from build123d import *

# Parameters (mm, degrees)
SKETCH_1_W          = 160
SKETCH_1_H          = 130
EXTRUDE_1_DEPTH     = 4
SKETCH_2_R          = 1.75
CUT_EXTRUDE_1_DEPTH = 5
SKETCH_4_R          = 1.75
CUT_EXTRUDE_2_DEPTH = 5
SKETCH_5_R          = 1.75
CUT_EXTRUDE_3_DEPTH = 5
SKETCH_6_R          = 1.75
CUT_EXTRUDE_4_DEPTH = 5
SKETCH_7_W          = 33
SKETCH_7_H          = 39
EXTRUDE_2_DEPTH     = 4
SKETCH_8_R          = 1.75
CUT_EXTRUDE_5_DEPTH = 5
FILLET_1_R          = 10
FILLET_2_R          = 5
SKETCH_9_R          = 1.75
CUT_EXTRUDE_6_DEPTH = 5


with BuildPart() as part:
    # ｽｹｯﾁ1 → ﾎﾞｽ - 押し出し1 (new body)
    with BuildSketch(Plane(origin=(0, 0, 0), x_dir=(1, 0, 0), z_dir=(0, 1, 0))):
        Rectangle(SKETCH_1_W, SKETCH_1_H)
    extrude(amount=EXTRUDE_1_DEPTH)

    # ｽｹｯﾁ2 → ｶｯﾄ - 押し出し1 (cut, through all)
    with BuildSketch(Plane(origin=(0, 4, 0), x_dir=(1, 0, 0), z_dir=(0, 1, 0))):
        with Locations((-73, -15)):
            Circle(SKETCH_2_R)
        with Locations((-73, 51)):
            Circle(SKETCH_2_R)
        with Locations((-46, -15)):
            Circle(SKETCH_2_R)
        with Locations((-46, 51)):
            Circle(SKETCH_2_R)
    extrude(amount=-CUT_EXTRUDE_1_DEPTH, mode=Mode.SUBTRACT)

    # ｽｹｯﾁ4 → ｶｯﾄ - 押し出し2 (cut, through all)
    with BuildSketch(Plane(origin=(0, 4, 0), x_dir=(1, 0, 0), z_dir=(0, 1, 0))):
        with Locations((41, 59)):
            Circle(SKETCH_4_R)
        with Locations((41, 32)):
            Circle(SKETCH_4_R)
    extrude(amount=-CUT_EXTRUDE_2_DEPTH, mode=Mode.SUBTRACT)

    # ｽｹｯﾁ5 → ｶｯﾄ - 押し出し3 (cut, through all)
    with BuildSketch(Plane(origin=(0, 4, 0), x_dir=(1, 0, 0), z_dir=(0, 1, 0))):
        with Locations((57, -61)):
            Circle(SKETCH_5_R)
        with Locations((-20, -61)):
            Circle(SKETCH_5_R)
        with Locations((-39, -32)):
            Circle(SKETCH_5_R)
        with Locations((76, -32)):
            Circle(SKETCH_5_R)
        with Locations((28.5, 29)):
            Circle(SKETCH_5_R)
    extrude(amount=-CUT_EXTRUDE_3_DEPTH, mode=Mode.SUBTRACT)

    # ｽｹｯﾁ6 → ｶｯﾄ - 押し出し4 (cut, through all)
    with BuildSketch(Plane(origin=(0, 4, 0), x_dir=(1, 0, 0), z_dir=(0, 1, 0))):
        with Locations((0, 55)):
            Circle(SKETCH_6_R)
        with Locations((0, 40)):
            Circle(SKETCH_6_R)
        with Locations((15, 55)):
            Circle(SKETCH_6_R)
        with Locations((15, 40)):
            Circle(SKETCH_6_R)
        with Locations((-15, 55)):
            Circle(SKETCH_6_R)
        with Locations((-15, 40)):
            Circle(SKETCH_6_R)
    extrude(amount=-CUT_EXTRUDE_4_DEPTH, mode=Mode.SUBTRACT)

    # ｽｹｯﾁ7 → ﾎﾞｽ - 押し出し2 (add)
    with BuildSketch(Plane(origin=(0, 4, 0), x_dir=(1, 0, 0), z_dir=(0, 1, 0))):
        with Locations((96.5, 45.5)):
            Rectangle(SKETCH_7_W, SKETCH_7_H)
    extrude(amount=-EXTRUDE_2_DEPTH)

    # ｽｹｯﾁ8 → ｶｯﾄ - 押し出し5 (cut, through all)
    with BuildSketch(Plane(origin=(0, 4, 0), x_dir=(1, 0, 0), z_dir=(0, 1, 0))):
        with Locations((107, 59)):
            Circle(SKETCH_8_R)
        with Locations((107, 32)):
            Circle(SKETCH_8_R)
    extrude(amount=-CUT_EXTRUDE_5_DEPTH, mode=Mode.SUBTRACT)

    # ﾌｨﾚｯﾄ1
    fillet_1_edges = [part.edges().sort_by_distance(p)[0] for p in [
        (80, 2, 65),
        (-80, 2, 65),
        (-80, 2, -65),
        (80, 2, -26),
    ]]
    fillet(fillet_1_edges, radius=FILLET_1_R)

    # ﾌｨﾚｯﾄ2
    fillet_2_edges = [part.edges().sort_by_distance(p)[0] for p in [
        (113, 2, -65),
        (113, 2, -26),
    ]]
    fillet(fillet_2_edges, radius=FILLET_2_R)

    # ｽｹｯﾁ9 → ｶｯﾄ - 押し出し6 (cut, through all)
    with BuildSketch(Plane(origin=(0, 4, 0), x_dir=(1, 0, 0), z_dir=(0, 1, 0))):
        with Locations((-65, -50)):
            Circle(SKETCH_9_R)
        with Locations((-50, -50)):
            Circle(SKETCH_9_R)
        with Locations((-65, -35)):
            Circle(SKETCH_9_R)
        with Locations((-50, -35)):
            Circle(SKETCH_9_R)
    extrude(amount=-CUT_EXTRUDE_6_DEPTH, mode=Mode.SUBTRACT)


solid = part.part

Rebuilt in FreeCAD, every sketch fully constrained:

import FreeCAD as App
import Part
import Sketcher
from FreeCAD import Vector
Q = App.Units.Quantity


def edges_at(feature, points):
    """Names of the edges that pass closest to the given points."""
    edges = feature.Shape.Edges
    near = lambda p: min(range(len(edges)), key=lambda i: edges[i].distToShape(Part.Vertex(*p))[0])
    return sorted({f"Edge{near(p) + 1}" for p in points})

doc = App.newDocument("Part")
body = doc.addObject("PartDesign::Body", "Body")

sketch1 = body.newObject("Sketcher::SketchObject", "Sketch")
sketch1.AttachmentSupport = (doc.getObject("XZ_Plane"), [""])
sketch1.MapMode = "FlatFace"
sketch1.addGeometry([
    Part.LineSegment(Vector(-80, -65, 0), Vector(-80, 65, 0)),
    Part.LineSegment(Vector(-80, 65, 0), Vector(80, 65, 0)),
    Part.LineSegment(Vector(80, 65, 0), Vector(80, -65, 0)),
    Part.LineSegment(Vector(80, -65, 0), Vector(-80, -65, 0)),
], False)
sketch1.addConstraint([
    Sketcher.Constraint("Coincident", 0, 2, 1, 1),
    Sketcher.Constraint("Coincident", 1, 2, 2, 1),
    Sketcher.Constraint("Coincident", 2, 2, 3, 1),
    Sketcher.Constraint("Coincident", 3, 2, 0, 1),
    Sketcher.Constraint("Vertical", 0),
    Sketcher.Constraint("Horizontal", 1),
    Sketcher.Constraint("Vertical", 2),
    Sketcher.Constraint("Horizontal", 3),
    Sketcher.Constraint("Symmetric", 0, 2, 2, 2, -1, 1),
    Sketcher.Constraint("DistanceX", 1, 1, 1, 2, Q("160 mm")),
    Sketcher.Constraint("DistanceY", 0, 1, 0, 2, Q("130 mm")),
])
pad1 = body.newObject("PartDesign::Pad", "Pad")
pad1.Profile = sketch1
pad1.Length = 4
pad1.Reversed = True

sketch2 = body.newObject("Sketcher::SketchObject", "Sketch001")
sketch2.AttachmentSupport = (doc.getObject("XZ_Plane"), [""])
sketch2.MapMode = "FlatFace"
sketch2.AttachmentOffset = App.Placement(Vector(0, 0, -4), App.Rotation())
sketch2.addGeometry([
    Part.Circle(Vector(-73, 15, 0), Vector(0, 0, 1), 1.8),
    Part.Circle(Vector(-73, -51, 0), Vector(0, 0, 1), 1.8),
    Part.Circle(Vector(-46, 15, 0), Vector(0, 0, 1), 1.8),
    Part.Circle(Vector(-46, -51, 0), Vector(0, 0, 1), 1.8),
], False)
sketch2.addConstraint([
    Sketcher.Constraint("Equal", 0, 1),
    Sketcher.Constraint("Equal", 1, 2),
    Sketcher.Constraint("Equal", 2, 3),
    Sketcher.Constraint("Horizontal", 0, 3, 2, 3),
    Sketcher.Constraint("Horizontal", 1, 3, 3, 3),
    Sketcher.Constraint("Vertical", 0, 3, 1, 3),
    Sketcher.Constraint("Vertical", 2, 3, 3, 3),
    Sketcher.Constraint("Diameter", 0, Q("3.5 mm")),
    Sketcher.Constraint("DistanceX", 0, 3, -1, 1, Q("73 mm")),
    Sketcher.Constraint("DistanceY", -1, 1, 0, 3, Q("15 mm")),
    Sketcher.Constraint("DistanceY", 1, 3, -1, 1, Q("51 mm")),
    Sketcher.Constraint("DistanceX", 2, 3, -1, 1, Q("46 mm")),
])
pocket1 = body.newObject("PartDesign::Pocket", "Pocket")
pocket1.Profile = sketch2
pocket1.Type = "ThroughAll"
pocket1.Reversed = True

sketch3 = body.newObject("Sketcher::SketchObject", "Sketch002")
sketch3.AttachmentSupport = (doc.getObject("XZ_Plane"), [""])
sketch3.MapMode = "FlatFace"
sketch3.AttachmentOffset = App.Placement(Vector(0, 0, -4), App.Rotation())
sketch3.addGeometry([
    Part.Circle(Vector(41, -59, 0), Vector(0, 0, 1), 1.8),
    Part.Circle(Vector(41, -32, 0), Vector(0, 0, 1), 1.8),
], False)
sketch3.addConstraint([
    Sketcher.Constraint("Equal", 0, 1),
    Sketcher.Constraint("Vertical", 0, 3, 1, 3),
    Sketcher.Constraint("Diameter", 0, Q("3.5 mm")),
    Sketcher.Constraint("DistanceX", -1, 1, 0, 3, Q("41 mm")),
    Sketcher.Constraint("DistanceY", 0, 3, -1, 1, Q("59 mm")),
    Sketcher.Constraint("DistanceY", 1, 3, -1, 1, Q("32 mm")),
])
pocket2 = body.newObject("PartDesign::Pocket", "Pocket001")
pocket2.Profile = sketch3
pocket2.Type = "ThroughAll"
pocket2.Reversed = True

sketch4 = body.newObject("Sketcher::SketchObject", "Sketch003")
sketch4.AttachmentSupport = (doc.getObject("XZ_Plane"), [""])
sketch4.MapMode = "FlatFace"
sketch4.AttachmentOffset = App.Placement(Vector(0, 0, -4), App.Rotation())
sketch4.addGeometry([
    Part.Circle(Vector(57, 61, 0), Vector(0, 0, 1), 1.8),
    Part.Circle(Vector(-20, 61, 0), Vector(0, 0, 1), 1.8),
    Part.Circle(Vector(-39, 32, 0), Vector(0, 0, 1), 1.8),
    Part.Circle(Vector(76, 32, 0), Vector(0, 0, 1), 1.8),
    Part.Circle(Vector(28.5, -29, 0), Vector(0, 0, 1), 1.8),
], False)
sketch4.addConstraint([
    Sketcher.Constraint("Equal", 0, 1),
    Sketcher.Constraint("Equal", 1, 2),
    Sketcher.Constraint("Equal", 2, 3),
    Sketcher.Constraint("Equal", 3, 4),
    Sketcher.Constraint("Horizontal", 0, 3, 1, 3),
    Sketcher.Constraint("Horizontal", 2, 3, 3, 3),
    Sketcher.Constraint("Diameter", 0, Q("3.5 mm")),
    Sketcher.Constraint("DistanceX", -1, 1, 0, 3, Q("57 mm")),
    Sketcher.Constraint("DistanceY", -1, 1, 0, 3, Q("61 mm")),
    Sketcher.Constraint("DistanceX", 1, 3, -1, 1, Q("20 mm")),
    Sketcher.Constraint("DistanceX", 2, 3, -1, 1, Q("39 mm")),
    Sketcher.Constraint("DistanceY", -1, 1, 2, 3, Q("32 mm")),
    Sketcher.Constraint("DistanceX", -1, 1, 3, 3, Q("76 mm")),
    Sketcher.Constraint("DistanceY", 4, 3, -1, 1, Q("29 mm")),
    Sketcher.Constraint("DistanceX", -1, 1, 4, 3, Q("28.5 mm")),
])
pocket3 = body.newObject("PartDesign::Pocket", "Pocket002")
pocket3.Profile = sketch4
pocket3.Type = "ThroughAll"
pocket3.Reversed = True

sketch5 = body.newObject("Sketcher::SketchObject", "Sketch004")
sketch5.AttachmentSupport = (doc.getObject("XZ_Plane"), [""])
sketch5.MapMode = "FlatFace"
sketch5.AttachmentOffset = App.Placement(Vector(0, 0, -4), App.Rotation())
sketch5.addGeometry([
    Part.Circle(Vector(0, -55, 0), Vector(0, 0, 1), 1.8),
    Part.Circle(Vector(0, -40, 0), Vector(0, 0, 1), 1.8),
    Part.Circle(Vector(15, -55, 0), Vector(0, 0, 1), 1.8),
    Part.Circle(Vector(15, -40, 0), Vector(0, 0, 1), 1.8),
    Part.Circle(Vector(-15, -55, 0), Vector(0, 0, 1), 1.8),
    Part.Circle(Vector(-15, -40, 0), Vector(0, 0, 1), 1.8),
], False)
sketch5.addConstraint([
    Sketcher.Constraint("Equal", 0, 1),
    Sketcher.Constraint("Equal", 1, 2),
    Sketcher.Constraint("Equal", 2, 3),
    Sketcher.Constraint("Equal", 3, 4),
    Sketcher.Constraint("Equal", 4, 5),
    Sketcher.Constraint("Symmetric", 2, 3, 4, 3, -2),
    Sketcher.Constraint("Symmetric", 3, 3, 5, 3, -2),
    Sketcher.Constraint("PointOnObject", 0, 3, -2),
    Sketcher.Constraint("PointOnObject", 1, 3, -2),
    Sketcher.Constraint("Horizontal", 0, 3, 2, 3),
    Sketcher.Constraint("Horizontal", 1, 3, 3, 3),
    Sketcher.Constraint("Vertical", 2, 3, 3, 3),
    Sketcher.Constraint("Diameter", 0, Q("3.5 mm")),
    Sketcher.Constraint("DistanceY", 0, 3, -1, 1, Q("55 mm")),
    Sketcher.Constraint("DistanceY", 1, 3, -1, 1, Q("40 mm")),
    Sketcher.Constraint("DistanceX", -1, 1, 2, 3, Q("15 mm")),
])
pocket4 = body.newObject("PartDesign::Pocket", "Pocket003")
pocket4.Profile = sketch5
pocket4.Type = "ThroughAll"
pocket4.Reversed = True

sketch6 = body.newObject("Sketcher::SketchObject", "Sketch005")
sketch6.AttachmentSupport = (doc.getObject("XZ_Plane"), [""])
sketch6.MapMode = "FlatFace"
sketch6.AttachmentOffset = App.Placement(Vector(0, 0, -4), App.Rotation())
sketch6.addGeometry([
    Part.LineSegment(Vector(80, -65, 0), Vector(80, -26, 0)),
    Part.LineSegment(Vector(80, -26, 0), Vector(113, -26, 0)),
    Part.LineSegment(Vector(113, -26, 0), Vector(113, -65, 0)),
    Part.LineSegment(Vector(113, -65, 0), Vector(80, -65, 0)),
], False)
sketch6.addConstraint([
    Sketcher.Constraint("Coincident", 0, 2, 1, 1),
    Sketcher.Constraint("Coincident", 1, 2, 2, 1),
    Sketcher.Constraint("Coincident", 2, 2, 3, 1),
    Sketcher.Constraint("Coincident", 3, 2, 0, 1),
    Sketcher.Constraint("Vertical", 0),
    Sketcher.Constraint("Horizontal", 1),
    Sketcher.Constraint("Vertical", 2),
    Sketcher.Constraint("Horizontal", 3),
    Sketcher.Constraint("DistanceX", 1, 1, 1, 2, Q("33 mm")),
    Sketcher.Constraint("DistanceY", 0, 1, 0, 2, Q("39 mm")),
    Sketcher.Constraint("DistanceX", -1, 1, 0, 2, Q("80 mm")),
    Sketcher.Constraint("DistanceY", 0, 2, -1, 1, Q("26 mm")),
])
pad2 = body.newObject("PartDesign::Pad", "Pad001")
pad2.Profile = sketch6
pad2.Length = 4

sketch7 = body.newObject("Sketcher::SketchObject", "Sketch006")
sketch7.AttachmentSupport = (doc.getObject("XZ_Plane"), [""])
sketch7.MapMode = "FlatFace"
sketch7.AttachmentOffset = App.Placement(Vector(0, 0, -4), App.Rotation())
sketch7.addGeometry([
    Part.Circle(Vector(107, -59, 0), Vector(0, 0, 1), 1.8),
    Part.Circle(Vector(107, -32, 0), Vector(0, 0, 1), 1.8),
], False)
sketch7.addConstraint([
    Sketcher.Constraint("Equal", 0, 1),
    Sketcher.Constraint("Vertical", 0, 3, 1, 3),
    Sketcher.Constraint("Diameter", 0, Q("3.5 mm")),
    Sketcher.Constraint("DistanceX", -1, 1, 0, 3, Q("107 mm")),
    Sketcher.Constraint("DistanceY", 0, 3, -1, 1, Q("59 mm")),
    Sketcher.Constraint("DistanceY", 1, 3, -1, 1, Q("32 mm")),
])
pocket5 = body.newObject("PartDesign::Pocket", "Pocket004")
pocket5.Profile = sketch7
pocket5.Type = "ThroughAll"
pocket5.Reversed = True
doc.recompute()

fillet = body.newObject("PartDesign::Fillet", "Fillet")
fillet.Base = (pocket5, edges_at(pocket5, [
    (80, 2, 65),
    (-80, 2, 65),
    (-80, 2, -65),
    (80, 2, -26),
]))
fillet.Radius = 10
doc.recompute()

fillet2 = body.newObject("PartDesign::Fillet", "Fillet001")
fillet2.Base = (fillet, edges_at(fillet, [(113, 2, -65), (113, 2, -26)]))
fillet2.Radius = 5

sketch8 = body.newObject("Sketcher::SketchObject", "Sketch007")
sketch8.AttachmentSupport = (doc.getObject("XZ_Plane"), [""])
sketch8.MapMode = "FlatFace"
sketch8.AttachmentOffset = App.Placement(Vector(0, 0, -4), App.Rotation())
sketch8.addGeometry([
    Part.Circle(Vector(-65, 50, 0), Vector(0, 0, 1), 1.8),
    Part.Circle(Vector(-50, 50, 0), Vector(0, 0, 1), 1.8),
    Part.Circle(Vector(-65, 35, 0), Vector(0, 0, 1), 1.8),
    Part.Circle(Vector(-50, 35, 0), Vector(0, 0, 1), 1.8),
], False)
sketch8.addConstraint([
    Sketcher.Constraint("Equal", 0, 1),
    Sketcher.Constraint("Equal", 1, 2),
    Sketcher.Constraint("Equal", 2, 3),
    Sketcher.Constraint("Horizontal", 0, 3, 1, 3),
    Sketcher.Constraint("Horizontal", 2, 3, 3, 3),
    Sketcher.Constraint("Vertical", 0, 3, 2, 3),
    Sketcher.Constraint("Vertical", 1, 3, 3, 3),
    Sketcher.Constraint("Diameter", 0, Q("3.5 mm")),
    Sketcher.Constraint("DistanceX", 0, 3, -1, 1, Q("65 mm")),
    Sketcher.Constraint("DistanceY", -1, 1, 0, 3, Q("50 mm")),
    Sketcher.Constraint("DistanceX", 1, 3, -1, 1, Q("50 mm")),
    Sketcher.Constraint("DistanceY", -1, 1, 2, 3, Q("35 mm")),
])
pocket6 = body.newObject("PartDesign::Pocket", "Pocket005")
pocket6.Profile = sketch8
pocket6.Type = "ThroughAll"
pocket6.Reversed = True

doc.recompute()
